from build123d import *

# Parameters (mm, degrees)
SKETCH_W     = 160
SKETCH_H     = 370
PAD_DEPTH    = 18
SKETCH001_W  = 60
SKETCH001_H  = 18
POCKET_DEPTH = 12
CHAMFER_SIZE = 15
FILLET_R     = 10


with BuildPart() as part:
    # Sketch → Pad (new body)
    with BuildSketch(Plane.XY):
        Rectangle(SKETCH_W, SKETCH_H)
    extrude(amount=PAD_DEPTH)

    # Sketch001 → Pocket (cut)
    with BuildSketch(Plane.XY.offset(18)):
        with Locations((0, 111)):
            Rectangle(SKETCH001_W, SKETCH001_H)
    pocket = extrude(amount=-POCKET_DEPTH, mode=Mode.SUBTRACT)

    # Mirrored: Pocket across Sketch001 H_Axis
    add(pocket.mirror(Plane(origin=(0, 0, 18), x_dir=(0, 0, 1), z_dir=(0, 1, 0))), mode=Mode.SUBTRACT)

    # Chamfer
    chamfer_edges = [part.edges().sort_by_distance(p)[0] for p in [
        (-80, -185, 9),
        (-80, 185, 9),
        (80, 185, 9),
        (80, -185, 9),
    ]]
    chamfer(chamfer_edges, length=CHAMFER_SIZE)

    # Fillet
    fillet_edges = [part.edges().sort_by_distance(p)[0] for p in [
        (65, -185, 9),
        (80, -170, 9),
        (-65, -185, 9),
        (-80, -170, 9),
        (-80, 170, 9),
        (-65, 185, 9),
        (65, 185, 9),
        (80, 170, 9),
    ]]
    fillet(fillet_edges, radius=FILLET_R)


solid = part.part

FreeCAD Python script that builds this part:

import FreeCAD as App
import Part
import Sketcher

V = App.Vector


def edges_at(feature, points):
    """Names of the edges that pass closest to the given points."""
    edges = feature.Shape.Edges
    near = lambda p: min(range(len(edges)), key=lambda i: edges[i].distToShape(Part.Vertex(*p))[0])
    return sorted({f"Edge{near(p) + 1}" for p in points})

doc = App.newDocument("Part")
params = doc.addObject("Spreadsheet::Sheet", "Params")
for row, (alias, value) in enumerate([
    ("sketch1_width", "160 mm"),
    ("sketch1_height", "370 mm"),
    ("pad1_length", "18 mm"),
    ("sketch2_width", "60 mm"),
    ("sketch2_height", "18 mm"),
    ("pocket1_length", "12 mm"),
    ("chamfer_size", "15 mm"),
    ("fillet_radius", "10 mm"),
], start=1):
    params.set(f"A{row}", alias)
    params.set(f"B{row}", "=" + value)
    params.setAlias(f"B{row}", alias)

body = doc.addObject("PartDesign::Body", "Body")

# Sketch on XY plane
sketch1 = body.newObject("Sketcher::SketchObject", "Sketch")
sketch1.AttachmentSupport = (doc.getObject("XY_Plane"), [""])
sketch1.MapMode = "FlatFace"
sketch1.addGeometry(Part.LineSegment(V(-80, 185, 0), V(-80, -185, 0)), False)
sketch1.addGeometry(Part.LineSegment(V(-80, -185, 0), V(80, -185, 0)), False)
sketch1.addGeometry(Part.LineSegment(V(80, -185, 0), V(80, 185, 0)), False)
sketch1.addGeometry(Part.LineSegment(V(80, 185, 0), V(-80, 185, 0)), False)
sketch1.addConstraint(Sketcher.Constraint("Coincident", 0, 2, 1, 1))
sketch1.addConstraint(Sketcher.Constraint("Coincident", 1, 2, 2, 1))
sketch1.addConstraint(Sketcher.Constraint("Coincident", 2, 2, 3, 1))
sketch1.addConstraint(Sketcher.Constraint("Coincident", 3, 2, 0, 1))
sketch1.addConstraint(Sketcher.Constraint("Vertical", 0))
sketch1.addConstraint(Sketcher.Constraint("Horizontal", 1))
sketch1.addConstraint(Sketcher.Constraint("Vertical", 2))
sketch1.addConstraint(Sketcher.Constraint("Horizontal", 3))
sketch1.addConstraint(Sketcher.Constraint("Symmetric", 0, 2, 2, 2, -1, 1))
sketch1.addConstraint(Sketcher.Constraint("DistanceX", 1, 1, 1, 2, 160.0))
sketch1.addConstraint(Sketcher.Constraint("DistanceY", 0, 2, 0, 1, 370.0))
sketch1.setExpression("Constraints[9]", "Params.sketch1_width")
sketch1.setExpression("Constraints[10]", "Params.sketch1_height")
pad1 = body.newObject("PartDesign::Pad", "Pad")
pad1.Profile = sketch1
pad1.setExpression("Length", "Params.pad1_length")

# Sketch on XY plane
sketch2 = body.newObject("Sketcher::SketchObject", "Sketch001")
sketch2.AttachmentSupport = (doc.getObject("XY_Plane"), [""])
sketch2.MapMode = "FlatFace"
sketch2.AttachmentOffset = App.Placement(V(0, 0, 18), App.Rotation())
sketch2.addGeometry(Part.LineSegment(V(-30, 120, 0), V(-30, 102, 0)), False)
sketch2.addGeometry(Part.LineSegment(V(-30, 102, 0), V(30, 102, 0)), False)
sketch2.addGeometry(Part.LineSegment(V(30, 102, 0), V(30, 120, 0)), False)
sketch2.addGeometry(Part.LineSegment(V(30, 120, 0), V(-30, 120, 0)), False)
sketch2.addConstraint(Sketcher.Constraint("Coincident", 0, 2, 1, 1))
sketch2.addConstraint(Sketcher.Constraint("Coincident", 1, 2, 2, 1))
sketch2.addConstraint(Sketcher.Constraint("Coincident", 2, 2, 3, 1))
sketch2.addConstraint(Sketcher.Constraint("Coincident", 3, 2, 0, 1))
sketch2.addConstraint(Sketcher.Constraint("Vertical", 0))
sketch2.addConstraint(Sketcher.Constraint("Horizontal", 1))
sketch2.addConstraint(Sketcher.Constraint("Vertical", 2))
sketch2.addConstraint(Sketcher.Constraint("Horizontal", 3))
sketch2.addConstraint(Sketcher.Constraint("DistanceX", 1, 1, 1, 2, 60.0))
sketch2.addConstraint(Sketcher.Constraint("DistanceY", 0, 2, 0, 1, 18.0))
sketch2.addConstraint(Sketcher.Constraint("DistanceX", 0, 2, -1, 1, 30.0))
sketch2.addConstraint(Sketcher.Constraint("DistanceY", -1, 1, 0, 2, 102.0))
sketch2.setExpression("Constraints[8]", "Params.sketch2_width")
sketch2.setExpression("Constraints[9]", "Params.sketch2_height")
pocket1 = body.newObject("PartDesign::Pocket", "Pocket")
pocket1.Profile = sketch2
pocket1.setExpression("Length", "Params.pocket1_length")
doc.recompute()

mirrored = body.newObject("PartDesign::Mirrored", "Mirrored")
mirrored.Originals = [pocket1]
mirrored.MirrorPlane = (doc.getObject("XZ_Plane"), [""])
body.Tip = mirrored
doc.recompute()

chamfer = body.newObject("PartDesign::Chamfer", "Chamfer")
chamfer.Base = (mirrored, edges_at(mirrored, [
    (-80, -185, 9),
    (-80, 185, 9),
    (80, 185, 9),
    (80, -185, 9),
]))
chamfer.setExpression("Size", "Params.chamfer_size")
doc.recompute()

fillet = body.newObject("PartDesign::Fillet", "Fillet")
fillet.Base = (chamfer, edges_at(chamfer, [
    (65, -185, 9),
    (80, -170, 9),
    (-65, -185, 9),
    (-80, -170, 9),
    (-80, 170, 9),
    (-65, 185, 9),
    (65, 185, 9),
    (80, 170, 9),
]))
fillet.setExpression("Radius", "Params.fillet_radius")

doc.recompute()
